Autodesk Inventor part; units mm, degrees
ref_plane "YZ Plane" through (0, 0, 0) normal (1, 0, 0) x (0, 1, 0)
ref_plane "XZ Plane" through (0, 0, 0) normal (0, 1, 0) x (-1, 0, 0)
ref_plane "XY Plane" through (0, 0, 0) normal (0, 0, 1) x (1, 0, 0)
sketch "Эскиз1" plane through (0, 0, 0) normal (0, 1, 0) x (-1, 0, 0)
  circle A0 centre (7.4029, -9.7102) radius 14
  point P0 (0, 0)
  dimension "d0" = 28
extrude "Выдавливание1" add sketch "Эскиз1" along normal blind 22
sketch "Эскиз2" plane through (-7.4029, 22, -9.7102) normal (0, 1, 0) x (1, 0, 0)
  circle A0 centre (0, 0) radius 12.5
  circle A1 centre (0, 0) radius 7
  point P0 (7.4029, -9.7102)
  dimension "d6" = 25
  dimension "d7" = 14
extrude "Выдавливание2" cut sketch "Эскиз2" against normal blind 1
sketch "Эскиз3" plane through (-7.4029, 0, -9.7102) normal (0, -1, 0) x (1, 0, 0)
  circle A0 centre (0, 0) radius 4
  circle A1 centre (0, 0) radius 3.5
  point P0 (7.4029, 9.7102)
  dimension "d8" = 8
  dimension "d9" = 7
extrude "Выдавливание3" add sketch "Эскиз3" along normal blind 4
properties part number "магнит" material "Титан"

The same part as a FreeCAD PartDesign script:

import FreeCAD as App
import Part
import Sketcher

V = App.Vector

doc = App.newDocument("Part")
body = doc.addObject("PartDesign::Body", "Body")

sketch1 = body.newObject("Sketcher::SketchObject", "Sketch")
sketch1.AttachmentSupport = (doc.getObject("XZ_Plane"), [""])
sketch1.MapMode = "FlatFace"
sketch1.addGeometry(Part.Circle(V(-7, -10, 0), V(0, 0, 1), 14), False)
sketch1.addConstraint([
    Sketcher.Constraint("Diameter", 0, 28.0),
    Sketcher.Constraint("DistanceX", 0, 3, -1, 1, 7.403),
    Sketcher.Constraint("DistanceY", 0, 3, -1, 1, 9.7102),
])
pad1 = body.newObject("PartDesign::Pad", "Pad")
pad1.Profile = sketch1
pad1.Length = 22
pad1.Reversed = True

sketch2 = body.newObject("Sketcher::SketchObject", "Sketch001")
sketch2.AttachmentSupport = (doc.getObject("XZ_Plane"), [""])
sketch2.MapMode = "FlatFace"
sketch2.AttachmentOffset = App.Placement(V(0, 0, -22), App.Rotation())
sketch2.addGeometry([
    Part.Circle(V(-7, -10, 0), V(0, 0, 1), 12),
    Part.Circle(V(-7, -10, 0), V(0, 0, 1), 7),
], False)
sketch2.addConstraint([
    Sketcher.Constraint("Coincident", 1, 3, 0, 3),
    Sketcher.Constraint("Diameter", 0, 25.0),
    Sketcher.Constraint("Diameter", 1, 14.0),
    Sketcher.Constraint("DistanceX", 0, 3, -1, 1, 7.403),
    Sketcher.Constraint("DistanceY", 0, 3, -1, 1, 9.7102),
])
pocket1 = body.newObject("PartDesign::Pocket", "Pocket")
pocket1.Profile = sketch2
pocket1.Length = 1
pocket1.Reversed = True

sketch3 = body.newObject("Sketcher::SketchObject", "Sketch002")
sketch3.AttachmentSupport = (doc.getObject("XZ_Plane"), [""])
sketch3.MapMode = "FlatFace"
sketch3.addGeometry([
    Part.Circle(V(-7.4, -9.7, 0), V(0, 0, 1), 4),
    Part.Circle(V(-7.4, -9.7, 0), V(0, 0, 1), 3.5),
], False)
sketch3.addConstraint([
    Sketcher.Constraint("Coincident", 1, 3, 0, 3),
    Sketcher.Constraint("Diameter", 0, 8.0),
    Sketcher.Constraint("Diameter", 1, 7.0),
    Sketcher.Constraint("DistanceX", 0, 3, -1, 1, 7.403),
    Sketcher.Constraint("DistanceY", 0, 3, -1, 1, 9.7102),
])
pad2 = body.newObject("PartDesign::Pad", "Pad001")
pad2.Profile = sketch3
pad2.Length = 4

doc.recompute()
